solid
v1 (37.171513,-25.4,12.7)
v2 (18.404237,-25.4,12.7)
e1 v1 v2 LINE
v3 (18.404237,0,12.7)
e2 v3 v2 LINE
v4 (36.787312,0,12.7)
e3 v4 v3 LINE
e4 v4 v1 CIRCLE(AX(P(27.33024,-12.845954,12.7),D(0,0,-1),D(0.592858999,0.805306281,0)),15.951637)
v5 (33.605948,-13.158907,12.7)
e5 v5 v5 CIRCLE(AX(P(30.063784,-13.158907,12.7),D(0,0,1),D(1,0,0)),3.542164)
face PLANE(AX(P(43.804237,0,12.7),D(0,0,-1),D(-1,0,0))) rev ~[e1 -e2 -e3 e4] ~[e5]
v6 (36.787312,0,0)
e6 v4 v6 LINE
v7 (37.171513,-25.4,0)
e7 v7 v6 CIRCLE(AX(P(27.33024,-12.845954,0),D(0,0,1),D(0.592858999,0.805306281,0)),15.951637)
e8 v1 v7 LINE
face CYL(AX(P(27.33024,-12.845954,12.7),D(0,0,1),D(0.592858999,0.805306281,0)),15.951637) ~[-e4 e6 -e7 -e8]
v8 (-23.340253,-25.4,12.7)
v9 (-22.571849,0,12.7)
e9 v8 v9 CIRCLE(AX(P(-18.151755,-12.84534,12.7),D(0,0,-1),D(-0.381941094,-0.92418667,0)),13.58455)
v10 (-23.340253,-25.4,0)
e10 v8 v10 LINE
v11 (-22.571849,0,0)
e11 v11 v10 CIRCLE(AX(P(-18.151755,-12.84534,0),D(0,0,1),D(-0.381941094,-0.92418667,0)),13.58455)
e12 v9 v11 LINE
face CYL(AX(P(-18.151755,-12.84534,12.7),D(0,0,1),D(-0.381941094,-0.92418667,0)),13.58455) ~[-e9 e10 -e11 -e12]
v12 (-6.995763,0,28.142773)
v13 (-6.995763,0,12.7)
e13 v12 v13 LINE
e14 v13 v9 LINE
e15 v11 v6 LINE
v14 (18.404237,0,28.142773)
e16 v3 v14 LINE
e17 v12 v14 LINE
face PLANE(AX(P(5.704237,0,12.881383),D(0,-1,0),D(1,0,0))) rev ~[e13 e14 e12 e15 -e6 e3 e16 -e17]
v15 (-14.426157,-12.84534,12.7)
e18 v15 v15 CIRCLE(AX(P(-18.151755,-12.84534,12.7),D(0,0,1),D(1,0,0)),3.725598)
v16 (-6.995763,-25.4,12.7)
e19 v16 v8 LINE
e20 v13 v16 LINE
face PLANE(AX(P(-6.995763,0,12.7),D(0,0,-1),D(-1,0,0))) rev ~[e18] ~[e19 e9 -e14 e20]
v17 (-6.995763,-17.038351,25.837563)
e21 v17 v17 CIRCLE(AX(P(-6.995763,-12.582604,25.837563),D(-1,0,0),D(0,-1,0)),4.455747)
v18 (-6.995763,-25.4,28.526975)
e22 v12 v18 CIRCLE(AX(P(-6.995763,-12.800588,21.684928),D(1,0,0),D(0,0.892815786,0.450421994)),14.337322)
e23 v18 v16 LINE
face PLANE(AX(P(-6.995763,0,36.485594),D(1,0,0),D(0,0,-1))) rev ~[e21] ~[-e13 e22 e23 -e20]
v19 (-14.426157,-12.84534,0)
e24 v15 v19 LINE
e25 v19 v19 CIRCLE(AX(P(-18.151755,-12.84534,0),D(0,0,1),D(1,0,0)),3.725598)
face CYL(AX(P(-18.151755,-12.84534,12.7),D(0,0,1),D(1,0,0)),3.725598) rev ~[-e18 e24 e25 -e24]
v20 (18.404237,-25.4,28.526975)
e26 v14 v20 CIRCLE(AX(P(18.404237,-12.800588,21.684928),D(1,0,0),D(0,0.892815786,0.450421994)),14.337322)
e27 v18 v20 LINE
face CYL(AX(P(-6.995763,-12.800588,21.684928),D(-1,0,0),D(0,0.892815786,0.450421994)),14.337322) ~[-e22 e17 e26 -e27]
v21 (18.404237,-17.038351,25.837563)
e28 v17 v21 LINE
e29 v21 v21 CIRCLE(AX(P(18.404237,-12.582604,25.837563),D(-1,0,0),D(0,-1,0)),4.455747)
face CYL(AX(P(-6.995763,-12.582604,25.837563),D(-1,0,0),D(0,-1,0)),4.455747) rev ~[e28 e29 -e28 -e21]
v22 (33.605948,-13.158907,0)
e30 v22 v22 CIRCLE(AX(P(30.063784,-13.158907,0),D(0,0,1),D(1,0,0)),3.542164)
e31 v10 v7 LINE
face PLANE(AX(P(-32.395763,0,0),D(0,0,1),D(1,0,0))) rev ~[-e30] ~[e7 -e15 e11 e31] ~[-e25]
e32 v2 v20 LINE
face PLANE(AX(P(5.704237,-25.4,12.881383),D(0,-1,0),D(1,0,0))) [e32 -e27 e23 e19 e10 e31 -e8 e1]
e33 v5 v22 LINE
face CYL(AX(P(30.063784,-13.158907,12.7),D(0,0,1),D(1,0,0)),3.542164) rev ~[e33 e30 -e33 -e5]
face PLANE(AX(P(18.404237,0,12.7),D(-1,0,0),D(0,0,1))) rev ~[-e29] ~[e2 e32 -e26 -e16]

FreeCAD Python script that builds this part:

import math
import FreeCAD as App
import Part
import Sketcher
Q = App.Units.Quantity

doc = App.newDocument("Part")
params = doc.addObject("Spreadsheet::Sheet", "Params")
for row, (alias, value) in enumerate([
    ("sketch1_width", "3 in"),
    ("sketch1_height", "0.5 in"),
    ("pad1_length", "1 in"),
    ("sketch2_width", "1 in"),
    ("pocket1_length", "1 in"),
    ("sketch3_height", "1 in"),
    ("pocket2_length", "1 in"),
    ("sketch4_height", "1 in"),
    ("pocket3_length", "1 in"),
    ("pocket4_length", "1 in"),
    ("pocket5_length", "1 in"),
], start=1):
    params.set(f"A{row}", alias)
    params.set(f"B{row}", "=" + value)
    params.setAlias(f"B{row}", alias)

body = doc.addObject("PartDesign::Body", "Body")

# Sketch on XZ plane
sketch1 = doc.addObject("Sketcher::SketchObject", "Sketch")
body.addObject(sketch1)
sketch1.AttachmentSupport = (doc.XZ_Plane, [""])
sketch1.MapMode = "FlatFace"
sketch1.addGeometry(Part.LineSegment(App.Vector(-32, 13, 0), App.Vector(-32, 0, 0)), False)
sketch1.addGeometry(Part.LineSegment(App.Vector(-32, 0, 0), App.Vector(44, 0, 0)), False)
sketch1.addGeometry(Part.LineSegment(App.Vector(44, 0, 0), App.Vector(44, 13, 0)), False)
sketch1.addGeometry(Part.LineSegment(App.Vector(44, 13, 0), App.Vector(18, 13, 0)), False)
sketch1.addGeometry(Part.LineSegment(App.Vector(18, 13, 0), App.Vector(18, 36, 0)), False)
sketch1.addGeometry(Part.LineSegment(App.Vector(18, 36, 0), App.Vector(-7, 36, 0)), False)
sketch1.addGeometry(Part.LineSegment(App.Vector(-7, 36, 0), App.Vector(-7, 13, 0)), False)
sketch1.addGeometry(Part.LineSegment(App.Vector(-7, 13, 0), App.Vector(-32, 13, 0)), False)
sketch1.addConstraint(Sketcher.Constraint("Coincident", 0, 2, 1, 1))
sketch1.addConstraint(Sketcher.Constraint("Coincident", 1, 2, 2, 1))
sketch1.addConstraint(Sketcher.Constraint("Coincident", 2, 2, 3, 1))
sketch1.addConstraint(Sketcher.Constraint("Coincident", 3, 2, 4, 1))
sketch1.addConstraint(Sketcher.Constraint("Coincident", 4, 2, 5, 1))
sketch1.addConstraint(Sketcher.Constraint("Coincident", 5, 2, 6, 1))
sketch1.addConstraint(Sketcher.Constraint("Coincident", 6, 2, 7, 1))
sketch1.addConstraint(Sketcher.Constraint("Coincident", 7, 2, 0, 1))
sketch1.addConstraint(Sketcher.Constraint("Vertical", 0))
sketch1.addConstraint(Sketcher.Constraint("Horizontal", 1))
sketch1.addConstraint(Sketcher.Constraint("Vertical", 2))
sketch1.addConstraint(Sketcher.Constraint("Horizontal", 3))
sketch1.addConstraint(Sketcher.Constraint("Vertical", 4))
sketch1.addConstraint(Sketcher.Constraint("Horizontal", 5))
sketch1.addConstraint(Sketcher.Constraint("Vertical", 6))
sketch1.addConstraint(Sketcher.Constraint("Horizontal", 7))
sketch1.addConstraint(Sketcher.Constraint("PointOnObject", 0, 2, -1))
sketch1.addConstraint(Sketcher.Constraint("Horizontal", 3, 2, 6, 2))
sketch1.addConstraint(Sketcher.Constraint("Equal", 3, 5))
sketch1.addConstraint(Sketcher.Constraint("Equal", 5, 7))
sketch1.addConstraint(Sketcher.Constraint("DistanceX", 1, 1, 1, 2, Q("3 in")))
sketch1.addConstraint(Sketcher.Constraint("DistanceY", 0, 2, 0, 1, Q("0.5 in")))
sketch1.addConstraint(Sketcher.Constraint("DistanceY", 4, 1, 4, 2, Q("23.785594 mm")))
sketch1.addConstraint(Sketcher.Constraint("DistanceX", 0, 2, -1, 1, Q("32.395763 mm")))
sketch1.setExpression("Constraints[20]", "Params.sketch1_width")
sketch1.setExpression("Constraints[21]", "Params.sketch1_height")
pad1 = doc.addObject("PartDesign::Pad", "Pad")
body.addObject(pad1)
pad1.Profile = sketch1
pad1.setExpression("Length", "Params.pad1_length")

# Sketch on YZ plane
sketch2 = doc.addObject("Sketcher::SketchObject", "Sketch001")
body.addObject(sketch2)
sketch2.AttachmentSupport = (doc.YZ_Plane, [""])
sketch2.MapMode = "FlatFace"
sketch2.AttachmentOffset = App.Placement(App.Vector(0, 0, -6.995763), App.Rotation())
sketch2.addGeometry(Part.ArcOfCircle(Part.Circle(App.Vector(-13, 22, 0), App.Vector(0, 0, 1), 14), math.radians(27), math.radians(151)), False)
sketch2.addGeometry(Part.LineSegment(App.Vector(-25, 29, 0), App.Vector(-25, 36, 0)), False)
sketch2.addGeometry(Part.LineSegment(App.Vector(-25, 36, 0), App.Vector(0, 36, 0)), False)
sketch2.addGeometry(Part.LineSegment(App.Vector(0, 36, 0), App.Vector(0, 28, 0)), False)
sketch2.addConstraint(Sketcher.Constraint("Coincident", 0, 2, 1, 1))
sketch2.addConstraint(Sketcher.Constraint("Coincident", 1, 2, 2, 1))
sketch2.addConstraint(Sketcher.Constraint("Coincident", 2, 2, 3, 1))
sketch2.addConstraint(Sketcher.Constraint("Coincident", 3, 2, 0, 1))
sketch2.addConstraint(Sketcher.Constraint("Vertical", 1))
sketch2.addConstraint(Sketcher.Constraint("Horizontal", 2))
sketch2.addConstraint(Sketcher.Constraint("Vertical", 3))
sketch2.addConstraint(Sketcher.Constraint("PointOnObject", 2, 2, -2))
sketch2.addConstraint(Sketcher.Constraint("DistanceX", 2, 1, 2, 2, Q("1 in")))
sketch2.addConstraint(Sketcher.Constraint("Radius", 0, Q("14.337322 mm")))
sketch2.addConstraint(Sketcher.Constraint("DistanceY", 1, 1, 1, 2, Q("7.958619 mm")))
sketch2.addConstraint(Sketcher.Constraint("DistanceY", 3, 2, 3, 1, Q("8.342821 mm")))
sketch2.addConstraint(Sketcher.Constraint("DistanceY", -1, 1, 0, 3, Q("21.684928 mm")))
sketch2.setExpression("Constraints[8]", "Params.sketch2_width")
pocket1 = doc.addObject("PartDesign::Pocket", "Pocket")
body.addObject(pocket1)
pocket1.Profile = sketch2
pocket1.setExpression("Length", "Params.pocket1_length")
pocket1.Reversed = True

# Sketch on XY plane
sketch3 = doc.addObject("Sketcher::SketchObject", "Sketch002")
body.addObject(sketch3)
sketch3.AttachmentSupport = (doc.XY_Plane, [""])
sketch3.MapMode = "FlatFace"
sketch3.AttachmentOffset = App.Placement(App.Vector(0, 0, 0.5 * 25.4), App.Rotation())
sketch3.addGeometry(Part.ArcOfCircle(Part.Circle(App.Vector(-18, -13, 0), App.Vector(0, 0, 1), 14), math.radians(109), math.radians(248)), False)
sketch3.addGeometry(Part.LineSegment(App.Vector(-23, 0, 0), App.Vector(-32, 0, 0)), False)
sketch3.addGeometry(Part.LineSegment(App.Vector(-32, 0, 0), App.Vector(-32, -25, 0)), False)
sketch3.addGeometry(Part.LineSegment(App.Vector(-32, -25, 0), App.Vector(-23, -25, 0)), False)
sketch3.addConstraint(Sketcher.Constraint("Coincident", 0, 1, 1, 1))
sketch3.addConstraint(Sketcher.Constraint("Coincident", 1, 2, 2, 1))
sketch3.addConstraint(Sketcher.Constraint("Coincident", 2, 2, 3, 1))
sketch3.addConstraint(Sketcher.Constraint("Coincident", 3, 2, 0, 2))
sketch3.addConstraint(Sketcher.Constraint("Horizontal", 1))
sketch3.addConstraint(Sketcher.Constraint("Vertical", 2))
sketch3.addConstraint(Sketcher.Constraint("Horizontal", 3))
sketch3.addConstraint(Sketcher.Constraint("PointOnObject", 0, 1, -1))
sketch3.addConstraint(Sketcher.Constraint("DistanceY", 2, 2, 2, 1, Q("1 in")))
sketch3.addConstraint(Sketcher.Constraint("Radius", 0, Q("13.58455 mm")))
sketch3.addConstraint(Sketcher.Constraint("DistanceX", 3, 1, 3, 2, Q("9.05551 mm")))
sketch3.addConstraint(Sketcher.Constraint("DistanceX", 1, 2, 1, 1, Q("9.823914 mm")))
sketch3.addConstraint(Sketcher.Constraint("DistanceX", 0, 1, -1, 1, Q("22.571849 mm")))
sketch3.setExpression("Constraints[8]", "Params.sketch3_height")
pocket2 = doc.addObject("PartDesign::Pocket", "Pocket001")
body.addObject(pocket2)
pocket2.Profile = sketch3
pocket2.setExpression("Length", "Params.pocket2_length")

# Sketch on XY plane
sketch4 = doc.addObject("Sketcher::SketchObject", "Sketch003")
body.addObject(sketch4)
sketch4.AttachmentSupport = (doc.XY_Plane, [""])
sketch4.MapMode = "FlatFace"
sketch4.AttachmentOffset = App.Placement(App.Vector(0, 0, 0.5 * 25.4), App.Rotation())
sketch4.addGeometry(Part.ArcOfCircle(Part.Circle(App.Vector(27, -13, 0), App.Vector(0, 0, 1), 16), math.radians(-52), math.radians(54)), False)
sketch4.addGeometry(Part.LineSegment(App.Vector(37, -25, 0), App.Vector(44, -25, 0)), False)
sketch4.addGeometry(Part.LineSegment(App.Vector(44, -25, 0), App.Vector(44, 0, 0)), False)
sketch4.addGeometry(Part.LineSegment(App.Vector(44, 0, 0), App.Vector(37, 0, 0)), False)
sketch4.addConstraint(Sketcher.Constraint("Coincident", 0, 1, 1, 1))
sketch4.addConstraint(Sketcher.Constraint("Coincident", 1, 2, 2, 1))
sketch4.addConstraint(Sketcher.Constraint("Coincident", 2, 2, 3, 1))
sketch4.addConstraint(Sketcher.Constraint("Coincident", 3, 2, 0, 2))
sketch4.addConstraint(Sketcher.Constraint("Horizontal", 1))
sketch4.addConstraint(Sketcher.Constraint("Vertical", 2))
sketch4.addConstraint(Sketcher.Constraint("Horizontal", 3))
sketch4.addConstraint(Sketcher.Constraint("PointOnObject", 2, 2, -1))
sketch4.addConstraint(Sketcher.Constraint("DistanceY", 2, 1, 2, 2, Q("1 in")))
sketch4.addConstraint(Sketcher.Constraint("Radius", 0, Q("15.951637 mm")))
sketch4.addConstraint(Sketcher.Constraint("DistanceX", 3, 2, 0, 1, Q("0.384201 mm")))
sketch4.addConstraint(Sketcher.Constraint("DistanceX", 1, 1, 1, 2, Q("6.632724 mm")))
sketch4.addConstraint(Sketcher.Constraint("DistanceX", -1, 1, 0, 3, Q("27.33024 mm")))
sketch4.setExpression("Constraints[8]", "Params.sketch4_height")
pocket3 = doc.addObject("PartDesign::Pocket", "Pocket002")
body.addObject(pocket3)
pocket3.Profile = sketch4
pocket3.setExpression("Length", "Params.pocket3_length")

# Sketch on XY plane
sketch5 = doc.addObject("Sketcher::SketchObject", "Sketch004")
body.addObject(sketch5)
sketch5.AttachmentSupport = (doc.XY_Plane, [""])
sketch5.MapMode = "FlatFace"
sketch5.AttachmentOffset = App.Placement(App.Vector(0, 0, 0.5 * 25.4), App.Rotation())
sketch5.addGeometry(Part.Circle(App.Vector(-18.2, -12.8, 0), App.Vector(0, 0, 1), 3.7), False)
sketch5.addGeometry(Part.Circle(App.Vector(30.1, -13.2, 0), App.Vector(0, 0, 1), 3.5), False)
sketch5.addConstraint(Sketcher.Constraint("Diameter", 1, Q("7.084328 mm")))
sketch5.addConstraint(Sketcher.Constraint("Diameter", 0, Q("7.451196 mm")))
sketch5.addConstraint(Sketcher.Constraint("DistanceY", 0, 3, -1, 1, Q("12.84534 mm")))
sketch5.addConstraint(Sketcher.Constraint("DistanceX", 0, 3, 1, 3, Q("48.215539 mm")))
sketch5.addConstraint(Sketcher.Constraint("DistanceX", 0, 3, -1, 1, Q("18.151755 mm")))
sketch5.addConstraint(Sketcher.Constraint("DistanceY", 1, 3, -1, 1, Q("13.158907 mm")))
pocket4 = doc.addObject("PartDesign::Pocket", "Pocket003")
body.addObject(pocket4)
pocket4.Profile = sketch5
pocket4.setExpression("Length", "Params.pocket4_length")

# Sketch on YZ plane
sketch6 = doc.addObject("Sketcher::SketchObject", "Sketch005")
body.addObject(sketch6)
sketch6.AttachmentSupport = (doc.YZ_Plane, [""])
sketch6.MapMode = "FlatFace"
sketch6.AttachmentOffset = App.Placement(App.Vector(0, 0, -6.995763), App.Rotation())
sketch6.addGeometry(Part.Circle(App.Vector(-12.6, 25.8, 0), App.Vector(0, 0, 1), 4.5), False)
sketch6.addConstraint(Sketcher.Constraint("Diameter", 0, Q("8.911494 mm")))
sketch6.addConstraint(Sketcher.Constraint("DistanceX", 0, 3, -1, 1, Q("12.582604 mm")))
sketch6.addConstraint(Sketcher.Constraint("DistanceY", -1, 1, 0, 3, Q("25.837563 mm")))
pocket5 = doc.addObject("PartDesign::Pocket", "Pocket004")
body.addObject(pocket5)
pocket5.Profile = sketch6
pocket5.setExpression("Length", "Params.pocket5_length")
pocket5.Reversed = True

doc.recompute()
